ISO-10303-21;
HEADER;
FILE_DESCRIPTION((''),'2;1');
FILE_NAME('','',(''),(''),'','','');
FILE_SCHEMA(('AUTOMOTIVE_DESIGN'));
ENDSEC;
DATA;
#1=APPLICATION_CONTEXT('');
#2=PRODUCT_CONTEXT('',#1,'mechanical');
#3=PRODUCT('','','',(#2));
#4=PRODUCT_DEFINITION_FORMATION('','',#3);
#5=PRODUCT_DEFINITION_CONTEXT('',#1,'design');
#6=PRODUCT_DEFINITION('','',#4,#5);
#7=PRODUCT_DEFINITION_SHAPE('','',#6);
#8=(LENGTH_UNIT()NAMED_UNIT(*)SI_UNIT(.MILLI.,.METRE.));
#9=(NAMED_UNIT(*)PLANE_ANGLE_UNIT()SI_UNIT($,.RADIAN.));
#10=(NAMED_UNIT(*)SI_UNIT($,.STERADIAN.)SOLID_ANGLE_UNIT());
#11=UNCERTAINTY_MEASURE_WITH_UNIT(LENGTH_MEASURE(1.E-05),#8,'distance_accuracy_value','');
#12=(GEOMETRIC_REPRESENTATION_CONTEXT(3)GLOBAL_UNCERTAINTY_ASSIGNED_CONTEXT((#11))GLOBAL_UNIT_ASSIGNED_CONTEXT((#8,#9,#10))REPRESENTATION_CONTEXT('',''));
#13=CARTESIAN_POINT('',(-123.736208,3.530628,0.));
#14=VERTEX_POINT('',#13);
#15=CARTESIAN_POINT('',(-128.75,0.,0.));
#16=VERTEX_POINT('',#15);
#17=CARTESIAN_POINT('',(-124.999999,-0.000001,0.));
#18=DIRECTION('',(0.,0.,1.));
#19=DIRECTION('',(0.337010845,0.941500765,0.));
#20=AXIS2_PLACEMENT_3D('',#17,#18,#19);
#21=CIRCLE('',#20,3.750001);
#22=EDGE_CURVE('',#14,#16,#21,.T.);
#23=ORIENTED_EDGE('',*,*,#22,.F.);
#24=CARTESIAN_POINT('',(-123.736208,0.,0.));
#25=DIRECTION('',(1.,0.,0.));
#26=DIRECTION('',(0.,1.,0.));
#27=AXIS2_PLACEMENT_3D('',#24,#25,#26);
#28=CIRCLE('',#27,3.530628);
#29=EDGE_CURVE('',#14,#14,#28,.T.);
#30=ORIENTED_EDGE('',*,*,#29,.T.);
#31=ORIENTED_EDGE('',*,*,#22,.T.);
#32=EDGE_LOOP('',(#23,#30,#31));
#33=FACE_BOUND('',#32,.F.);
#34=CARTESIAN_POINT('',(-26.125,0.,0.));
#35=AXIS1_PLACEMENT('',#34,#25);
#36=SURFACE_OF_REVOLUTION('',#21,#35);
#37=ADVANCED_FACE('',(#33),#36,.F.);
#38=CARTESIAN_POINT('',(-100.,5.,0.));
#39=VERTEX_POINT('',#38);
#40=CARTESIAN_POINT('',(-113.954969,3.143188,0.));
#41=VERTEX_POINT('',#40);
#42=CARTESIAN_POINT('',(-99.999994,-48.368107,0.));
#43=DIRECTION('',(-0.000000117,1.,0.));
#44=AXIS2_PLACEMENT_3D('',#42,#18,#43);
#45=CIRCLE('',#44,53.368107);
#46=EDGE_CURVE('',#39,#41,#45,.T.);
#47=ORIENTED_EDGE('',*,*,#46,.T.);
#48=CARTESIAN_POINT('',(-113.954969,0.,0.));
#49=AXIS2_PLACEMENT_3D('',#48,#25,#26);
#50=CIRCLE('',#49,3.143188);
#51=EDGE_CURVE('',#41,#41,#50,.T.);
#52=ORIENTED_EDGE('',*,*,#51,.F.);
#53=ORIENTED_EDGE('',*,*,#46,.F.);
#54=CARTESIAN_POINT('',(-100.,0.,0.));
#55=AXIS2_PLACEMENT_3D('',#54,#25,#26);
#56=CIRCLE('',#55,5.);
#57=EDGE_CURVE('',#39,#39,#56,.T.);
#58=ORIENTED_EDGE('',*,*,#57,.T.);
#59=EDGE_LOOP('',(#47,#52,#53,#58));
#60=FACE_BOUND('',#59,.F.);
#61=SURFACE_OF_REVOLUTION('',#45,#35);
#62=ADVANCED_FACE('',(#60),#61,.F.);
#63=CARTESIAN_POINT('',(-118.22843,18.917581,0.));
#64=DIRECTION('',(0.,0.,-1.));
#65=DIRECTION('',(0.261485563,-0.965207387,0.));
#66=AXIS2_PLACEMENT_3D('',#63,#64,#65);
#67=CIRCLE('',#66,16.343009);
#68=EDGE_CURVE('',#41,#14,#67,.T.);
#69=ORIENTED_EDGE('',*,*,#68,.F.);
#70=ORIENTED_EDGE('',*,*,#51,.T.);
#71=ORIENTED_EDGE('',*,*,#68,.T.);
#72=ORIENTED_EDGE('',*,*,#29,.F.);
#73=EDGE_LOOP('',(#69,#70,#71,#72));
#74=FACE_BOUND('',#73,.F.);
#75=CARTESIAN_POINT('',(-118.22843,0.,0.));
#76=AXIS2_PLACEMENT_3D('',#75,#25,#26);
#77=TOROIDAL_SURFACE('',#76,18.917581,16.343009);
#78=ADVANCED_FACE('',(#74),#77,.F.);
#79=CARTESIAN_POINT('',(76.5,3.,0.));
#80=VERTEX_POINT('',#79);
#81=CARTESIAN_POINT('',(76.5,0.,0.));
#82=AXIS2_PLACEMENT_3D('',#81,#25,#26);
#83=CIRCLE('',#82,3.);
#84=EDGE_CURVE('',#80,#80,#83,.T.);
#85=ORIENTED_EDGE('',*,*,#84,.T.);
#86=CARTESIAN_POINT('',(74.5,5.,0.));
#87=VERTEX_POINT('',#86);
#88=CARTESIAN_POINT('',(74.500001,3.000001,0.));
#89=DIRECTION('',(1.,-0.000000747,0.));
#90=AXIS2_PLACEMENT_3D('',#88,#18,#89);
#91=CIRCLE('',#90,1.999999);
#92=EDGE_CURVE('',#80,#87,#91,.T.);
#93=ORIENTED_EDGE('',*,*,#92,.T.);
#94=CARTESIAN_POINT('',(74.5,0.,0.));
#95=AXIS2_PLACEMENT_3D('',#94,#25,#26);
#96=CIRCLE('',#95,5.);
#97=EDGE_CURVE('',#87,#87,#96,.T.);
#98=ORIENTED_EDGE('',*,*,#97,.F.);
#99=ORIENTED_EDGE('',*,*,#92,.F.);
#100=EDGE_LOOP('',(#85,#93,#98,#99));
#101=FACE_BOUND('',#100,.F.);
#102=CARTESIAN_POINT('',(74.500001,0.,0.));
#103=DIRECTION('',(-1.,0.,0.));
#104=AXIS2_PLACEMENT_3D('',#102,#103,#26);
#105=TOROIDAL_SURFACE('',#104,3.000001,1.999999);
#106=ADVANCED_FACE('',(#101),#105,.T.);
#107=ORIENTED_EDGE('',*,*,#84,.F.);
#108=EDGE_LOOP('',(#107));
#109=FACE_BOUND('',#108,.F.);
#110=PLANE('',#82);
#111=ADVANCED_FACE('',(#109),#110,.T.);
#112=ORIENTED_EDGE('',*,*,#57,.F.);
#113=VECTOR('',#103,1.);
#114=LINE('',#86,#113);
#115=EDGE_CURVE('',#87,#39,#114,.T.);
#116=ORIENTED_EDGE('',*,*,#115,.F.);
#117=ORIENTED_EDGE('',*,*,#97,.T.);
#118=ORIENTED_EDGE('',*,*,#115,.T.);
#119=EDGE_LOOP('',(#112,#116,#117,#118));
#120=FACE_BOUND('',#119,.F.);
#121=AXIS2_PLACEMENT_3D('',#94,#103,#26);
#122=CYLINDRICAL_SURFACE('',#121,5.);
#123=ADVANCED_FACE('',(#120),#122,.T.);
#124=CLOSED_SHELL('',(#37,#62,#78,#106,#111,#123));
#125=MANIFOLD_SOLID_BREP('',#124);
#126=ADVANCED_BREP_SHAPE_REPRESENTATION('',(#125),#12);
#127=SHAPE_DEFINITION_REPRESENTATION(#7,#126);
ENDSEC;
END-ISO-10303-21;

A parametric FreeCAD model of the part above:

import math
import FreeCAD as App
import Part
import Sketcher

V = App.Vector
Q = App.Units.Quantity

doc = App.newDocument("Part")
body = doc.addObject("PartDesign::Body", "Body")

sketch1 = body.newObject("Sketcher::SketchObject", "Sketch")
sketch1.AttachmentSupport = (doc.getObject("XY_Plane"), [""])
sketch1.MapMode = "FlatFace"
sketch1.addGeometry([
    Part.ArcOfCircle(Part.Circle(V(74.500001, 3.000001, 0), V(0, 0, 1), 1.999999), math.radians(-0.000043), math.radians(90.000043)),
    Part.LineSegment(V(74.5, 5, 0), V(-100, 5, 0)),
    Part.ArcOfCircle(Part.Circle(V(-99.999994, -48.368107, 0), V(0, 0, 1), 53.368107), math.radians(90.000007), math.radians(105.158212)),
    Part.ArcOfCircle(Part.Circle(V(-118.22843, 18.917581, 0), V(0, 0, 1), 16.343009), math.radians(-109.694888), math.radians(-74.841772)),
    Part.ArcOfCircle(Part.Circle(V(-124.999999, -0.000001, 0), V(0, 0, 1), 3.750001), math.radians(70.305137), math.radians(179.999988)),
    Part.LineSegment(V(-128.75, 0, 0), V(76.5, 0, 0)),
    Part.LineSegment(V(76.5, 0, 0), V(76.5, 3, 0)),
], False)
sketch1.addConstraint([
    Sketcher.Constraint("Tangent", 0, 2, 1, 1),
    Sketcher.Constraint("Tangent", 1, 2, 2, 1),
    Sketcher.Constraint("Tangent", 2, 2, 3, 2),
    Sketcher.Constraint("Tangent", 3, 1, 4, 1),
    Sketcher.Constraint("Coincident", 4, 2, 5, 1),
    Sketcher.Constraint("Coincident", 5, 2, 6, 1),
    Sketcher.Constraint("Tangent", 6, 2, 0, 1),
    Sketcher.Constraint("Horizontal", 1),
    Sketcher.Constraint("Horizontal", 5),
    Sketcher.Constraint("Vertical", 6),
    Sketcher.Constraint("PointOnObject", 4, 3, -1),
    Sketcher.Constraint("PointOnObject", 4, 2, -1),
    Sketcher.Constraint("Radius", 0, Q("1.999999 mm")),
    Sketcher.Constraint("DistanceY", 6, 1, 6, 2, Q("3 mm")),
    Sketcher.Constraint("Radius", 4, Q("3.750001 mm")),
    Sketcher.Constraint("DistanceX", 1, 2, 1, 1, Q("174.5 mm")),
    Sketcher.Constraint("DistanceX", 4, 3, -1, 1, Q("124.999999 mm")),
    Sketcher.Constraint("DistanceX", 1, 2, -1, 1, Q("100 mm")),
    Sketcher.Constraint("Radius", 3, Q("16.343009 mm")),
    Sketcher.Constraint("Radius", 2, Q("53.368107 mm")),
])
revolution = body.newObject("PartDesign::Revolution", "Revolution")
revolution.Profile = sketch1
revolution.ReferenceAxis = (sketch1, ["H_Axis"])
revolution.Angle = 360

doc.recompute()
